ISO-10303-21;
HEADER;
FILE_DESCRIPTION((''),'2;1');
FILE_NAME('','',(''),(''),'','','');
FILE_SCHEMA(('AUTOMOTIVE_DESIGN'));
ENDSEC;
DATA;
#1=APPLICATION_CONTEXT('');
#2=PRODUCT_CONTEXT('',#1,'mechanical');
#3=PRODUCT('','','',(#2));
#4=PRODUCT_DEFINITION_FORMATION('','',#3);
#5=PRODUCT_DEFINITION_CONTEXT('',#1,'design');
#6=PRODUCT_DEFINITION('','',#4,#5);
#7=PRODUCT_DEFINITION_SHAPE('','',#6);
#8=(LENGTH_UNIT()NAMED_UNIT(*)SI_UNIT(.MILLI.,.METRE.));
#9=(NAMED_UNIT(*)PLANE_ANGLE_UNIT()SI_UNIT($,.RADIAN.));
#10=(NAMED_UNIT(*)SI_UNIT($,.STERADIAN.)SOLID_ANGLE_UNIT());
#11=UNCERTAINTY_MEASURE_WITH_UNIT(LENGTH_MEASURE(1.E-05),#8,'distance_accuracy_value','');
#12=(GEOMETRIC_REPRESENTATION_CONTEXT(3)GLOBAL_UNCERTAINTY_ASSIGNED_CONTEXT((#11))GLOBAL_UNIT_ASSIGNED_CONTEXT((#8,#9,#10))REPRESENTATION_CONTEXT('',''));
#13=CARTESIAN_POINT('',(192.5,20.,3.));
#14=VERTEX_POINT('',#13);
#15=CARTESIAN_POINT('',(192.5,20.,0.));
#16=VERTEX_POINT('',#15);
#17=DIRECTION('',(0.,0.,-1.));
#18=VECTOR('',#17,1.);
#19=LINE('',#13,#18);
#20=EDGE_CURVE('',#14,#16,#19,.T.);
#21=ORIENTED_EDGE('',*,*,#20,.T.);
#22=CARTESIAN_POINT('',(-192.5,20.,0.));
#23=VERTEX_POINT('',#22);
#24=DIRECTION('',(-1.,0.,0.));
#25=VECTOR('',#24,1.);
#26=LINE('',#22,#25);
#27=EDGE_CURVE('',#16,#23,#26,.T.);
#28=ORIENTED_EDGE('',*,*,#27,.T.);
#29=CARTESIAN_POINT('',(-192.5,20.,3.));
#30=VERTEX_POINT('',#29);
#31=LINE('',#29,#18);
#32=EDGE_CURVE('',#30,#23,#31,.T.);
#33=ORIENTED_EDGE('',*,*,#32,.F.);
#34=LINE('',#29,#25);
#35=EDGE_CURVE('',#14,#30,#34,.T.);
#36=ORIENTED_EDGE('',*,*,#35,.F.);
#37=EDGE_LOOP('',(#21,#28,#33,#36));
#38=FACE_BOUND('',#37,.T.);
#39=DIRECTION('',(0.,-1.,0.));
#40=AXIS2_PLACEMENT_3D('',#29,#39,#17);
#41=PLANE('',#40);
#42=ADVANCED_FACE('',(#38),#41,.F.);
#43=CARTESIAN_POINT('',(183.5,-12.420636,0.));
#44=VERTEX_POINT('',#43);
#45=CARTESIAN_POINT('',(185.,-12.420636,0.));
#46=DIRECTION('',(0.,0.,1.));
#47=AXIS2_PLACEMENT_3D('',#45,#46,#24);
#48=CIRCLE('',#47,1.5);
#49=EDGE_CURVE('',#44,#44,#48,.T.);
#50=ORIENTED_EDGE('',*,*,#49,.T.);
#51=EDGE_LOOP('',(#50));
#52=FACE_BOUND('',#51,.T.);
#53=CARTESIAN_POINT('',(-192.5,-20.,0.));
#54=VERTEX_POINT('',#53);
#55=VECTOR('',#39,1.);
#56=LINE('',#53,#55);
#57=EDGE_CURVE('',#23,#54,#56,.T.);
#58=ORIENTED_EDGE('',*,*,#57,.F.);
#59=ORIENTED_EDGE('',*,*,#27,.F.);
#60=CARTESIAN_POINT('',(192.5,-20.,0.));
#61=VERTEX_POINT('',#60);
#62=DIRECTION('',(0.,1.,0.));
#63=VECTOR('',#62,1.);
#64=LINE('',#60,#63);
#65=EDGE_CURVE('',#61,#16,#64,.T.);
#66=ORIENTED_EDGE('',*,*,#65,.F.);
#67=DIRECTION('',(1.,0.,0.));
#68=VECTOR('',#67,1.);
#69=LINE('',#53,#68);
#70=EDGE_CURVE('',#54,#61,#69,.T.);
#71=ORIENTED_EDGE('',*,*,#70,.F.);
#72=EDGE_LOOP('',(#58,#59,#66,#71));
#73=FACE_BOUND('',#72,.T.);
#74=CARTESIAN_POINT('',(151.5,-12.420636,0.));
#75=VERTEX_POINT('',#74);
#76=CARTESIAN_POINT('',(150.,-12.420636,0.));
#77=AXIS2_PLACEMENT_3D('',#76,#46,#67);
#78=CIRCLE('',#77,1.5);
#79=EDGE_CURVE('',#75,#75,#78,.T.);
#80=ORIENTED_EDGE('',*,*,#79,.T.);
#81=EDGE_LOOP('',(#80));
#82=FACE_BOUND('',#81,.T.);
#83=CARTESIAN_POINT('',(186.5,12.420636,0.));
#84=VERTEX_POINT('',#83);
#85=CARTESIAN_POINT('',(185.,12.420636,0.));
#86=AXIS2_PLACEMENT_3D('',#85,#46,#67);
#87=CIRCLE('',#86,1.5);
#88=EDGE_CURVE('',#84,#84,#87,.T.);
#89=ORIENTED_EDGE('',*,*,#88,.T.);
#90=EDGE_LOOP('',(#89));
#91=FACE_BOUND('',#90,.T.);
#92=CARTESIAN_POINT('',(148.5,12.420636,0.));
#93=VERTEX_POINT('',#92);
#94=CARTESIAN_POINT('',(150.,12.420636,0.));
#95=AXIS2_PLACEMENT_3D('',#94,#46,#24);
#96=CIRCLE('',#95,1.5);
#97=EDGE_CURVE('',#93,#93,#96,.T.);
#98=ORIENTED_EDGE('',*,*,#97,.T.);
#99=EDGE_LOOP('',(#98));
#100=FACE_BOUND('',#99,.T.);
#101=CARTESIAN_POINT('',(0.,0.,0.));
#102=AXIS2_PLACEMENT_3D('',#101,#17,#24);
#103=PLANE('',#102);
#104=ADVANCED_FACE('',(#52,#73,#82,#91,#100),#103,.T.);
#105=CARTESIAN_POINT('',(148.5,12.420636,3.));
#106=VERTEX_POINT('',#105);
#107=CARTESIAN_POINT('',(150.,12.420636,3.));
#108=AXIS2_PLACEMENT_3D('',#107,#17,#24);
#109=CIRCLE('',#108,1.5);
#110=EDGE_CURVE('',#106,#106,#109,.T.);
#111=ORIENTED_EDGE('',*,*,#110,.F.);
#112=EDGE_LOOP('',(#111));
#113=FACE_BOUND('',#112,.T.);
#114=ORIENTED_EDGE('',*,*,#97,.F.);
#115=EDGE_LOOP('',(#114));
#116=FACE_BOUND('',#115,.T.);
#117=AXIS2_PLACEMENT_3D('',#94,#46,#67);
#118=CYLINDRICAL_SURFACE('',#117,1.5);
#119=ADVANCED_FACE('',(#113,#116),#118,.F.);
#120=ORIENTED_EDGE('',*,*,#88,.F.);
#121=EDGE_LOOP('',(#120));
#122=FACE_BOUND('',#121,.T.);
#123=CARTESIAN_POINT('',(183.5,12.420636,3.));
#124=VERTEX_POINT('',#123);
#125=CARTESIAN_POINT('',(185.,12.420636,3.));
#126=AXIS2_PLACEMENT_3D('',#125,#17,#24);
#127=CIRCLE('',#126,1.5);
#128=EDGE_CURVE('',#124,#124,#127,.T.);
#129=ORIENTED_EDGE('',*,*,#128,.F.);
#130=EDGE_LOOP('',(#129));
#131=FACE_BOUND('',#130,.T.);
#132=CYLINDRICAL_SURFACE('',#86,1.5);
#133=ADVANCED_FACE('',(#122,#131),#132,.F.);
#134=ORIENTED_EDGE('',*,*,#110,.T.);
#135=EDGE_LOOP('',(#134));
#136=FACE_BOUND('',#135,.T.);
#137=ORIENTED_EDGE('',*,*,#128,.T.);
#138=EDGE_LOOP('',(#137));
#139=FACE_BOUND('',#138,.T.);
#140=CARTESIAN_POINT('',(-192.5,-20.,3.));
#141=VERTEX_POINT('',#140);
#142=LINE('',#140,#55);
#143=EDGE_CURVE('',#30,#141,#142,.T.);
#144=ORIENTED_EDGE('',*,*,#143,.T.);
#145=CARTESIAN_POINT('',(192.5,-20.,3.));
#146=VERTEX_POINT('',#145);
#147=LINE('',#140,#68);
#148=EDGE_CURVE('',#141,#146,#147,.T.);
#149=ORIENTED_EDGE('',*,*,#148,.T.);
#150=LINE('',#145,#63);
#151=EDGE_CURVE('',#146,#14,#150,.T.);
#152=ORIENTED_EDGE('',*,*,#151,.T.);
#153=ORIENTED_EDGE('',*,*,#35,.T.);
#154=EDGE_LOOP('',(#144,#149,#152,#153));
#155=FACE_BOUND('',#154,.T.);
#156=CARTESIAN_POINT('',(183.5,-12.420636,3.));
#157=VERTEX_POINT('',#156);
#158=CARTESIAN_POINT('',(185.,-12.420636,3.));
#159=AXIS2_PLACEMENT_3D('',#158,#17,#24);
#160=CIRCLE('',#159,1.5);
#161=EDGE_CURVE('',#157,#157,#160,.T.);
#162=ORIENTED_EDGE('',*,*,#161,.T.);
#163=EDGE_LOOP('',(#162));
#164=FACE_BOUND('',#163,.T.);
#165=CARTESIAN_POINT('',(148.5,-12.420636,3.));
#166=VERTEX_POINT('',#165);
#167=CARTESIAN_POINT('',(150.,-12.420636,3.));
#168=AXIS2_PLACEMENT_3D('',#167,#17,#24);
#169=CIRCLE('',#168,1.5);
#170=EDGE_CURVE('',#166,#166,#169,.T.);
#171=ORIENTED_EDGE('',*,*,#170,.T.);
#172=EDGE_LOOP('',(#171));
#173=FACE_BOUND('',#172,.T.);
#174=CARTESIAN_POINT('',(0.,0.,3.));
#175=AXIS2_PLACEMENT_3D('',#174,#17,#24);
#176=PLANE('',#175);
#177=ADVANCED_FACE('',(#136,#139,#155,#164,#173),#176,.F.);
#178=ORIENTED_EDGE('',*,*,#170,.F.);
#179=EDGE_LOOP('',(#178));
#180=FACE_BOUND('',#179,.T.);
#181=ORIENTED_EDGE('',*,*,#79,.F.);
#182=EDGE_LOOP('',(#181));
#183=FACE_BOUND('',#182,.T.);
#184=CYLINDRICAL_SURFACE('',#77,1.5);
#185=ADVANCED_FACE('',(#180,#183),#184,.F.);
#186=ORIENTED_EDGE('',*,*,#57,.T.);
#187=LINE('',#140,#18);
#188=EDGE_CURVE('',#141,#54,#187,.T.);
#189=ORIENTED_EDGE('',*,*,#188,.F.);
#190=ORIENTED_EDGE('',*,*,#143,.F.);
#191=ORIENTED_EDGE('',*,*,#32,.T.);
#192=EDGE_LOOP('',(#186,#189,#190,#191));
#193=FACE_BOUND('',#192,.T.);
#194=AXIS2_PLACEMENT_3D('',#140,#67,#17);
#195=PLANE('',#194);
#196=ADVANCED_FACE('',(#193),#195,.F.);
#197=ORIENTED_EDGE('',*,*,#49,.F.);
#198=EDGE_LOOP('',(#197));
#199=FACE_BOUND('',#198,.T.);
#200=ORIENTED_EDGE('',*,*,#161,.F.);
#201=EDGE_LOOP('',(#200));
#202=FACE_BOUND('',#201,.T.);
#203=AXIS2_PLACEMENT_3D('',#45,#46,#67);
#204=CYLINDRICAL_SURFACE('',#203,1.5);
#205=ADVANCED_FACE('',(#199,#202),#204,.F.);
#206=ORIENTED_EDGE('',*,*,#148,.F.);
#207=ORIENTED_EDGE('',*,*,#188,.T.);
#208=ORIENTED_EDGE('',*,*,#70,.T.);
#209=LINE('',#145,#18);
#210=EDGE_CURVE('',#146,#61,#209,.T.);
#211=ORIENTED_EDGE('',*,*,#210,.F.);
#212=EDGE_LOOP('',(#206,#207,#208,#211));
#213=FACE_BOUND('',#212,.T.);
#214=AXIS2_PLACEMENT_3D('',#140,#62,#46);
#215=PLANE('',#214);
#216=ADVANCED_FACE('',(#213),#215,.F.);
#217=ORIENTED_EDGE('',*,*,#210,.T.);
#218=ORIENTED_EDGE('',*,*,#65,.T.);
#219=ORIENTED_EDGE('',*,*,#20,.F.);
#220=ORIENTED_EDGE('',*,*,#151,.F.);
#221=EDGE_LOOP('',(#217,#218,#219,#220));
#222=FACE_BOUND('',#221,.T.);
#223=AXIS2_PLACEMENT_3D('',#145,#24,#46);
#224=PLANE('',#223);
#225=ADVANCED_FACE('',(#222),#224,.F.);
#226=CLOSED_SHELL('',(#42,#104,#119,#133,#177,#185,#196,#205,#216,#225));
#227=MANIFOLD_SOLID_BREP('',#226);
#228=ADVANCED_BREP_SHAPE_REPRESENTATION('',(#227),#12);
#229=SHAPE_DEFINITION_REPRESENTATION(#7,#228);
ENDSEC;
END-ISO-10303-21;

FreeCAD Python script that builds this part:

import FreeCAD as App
import Part
import Sketcher
from FreeCAD import Vector
Q = App.Units.Quantity

doc = App.newDocument("Part")
body = doc.addObject("PartDesign::Body", "Body")

# Sketch on XY plane
sketch1 = doc.addObject("Sketcher::SketchObject", "Sketch")
body.addObject(sketch1)
sketch1.AttachmentSupport = (doc.XY_Plane, [""])
sketch1.MapMode = "FlatFace"
sketch1.addGeometry(Part.LineSegment(Vector(-192, 20, 0), Vector(-192, -20, 0)), False)
sketch1.addGeometry(Part.LineSegment(Vector(-192, -20, 0), Vector(192, -20, 0)), False)
sketch1.addGeometry(Part.LineSegment(Vector(192, -20, 0), Vector(192, 20, 0)), False)
sketch1.addGeometry(Part.LineSegment(Vector(192, 20, 0), Vector(-192, 20, 0)), False)
sketch1.addConstraint(Sketcher.Constraint("Coincident", 0, 2, 1, 1))
sketch1.addConstraint(Sketcher.Constraint("Coincident", 1, 2, 2, 1))
sketch1.addConstraint(Sketcher.Constraint("Coincident", 2, 2, 3, 1))
sketch1.addConstraint(Sketcher.Constraint("Coincident", 3, 2, 0, 1))
sketch1.addConstraint(Sketcher.Constraint("Vertical", 0))
sketch1.addConstraint(Sketcher.Constraint("Horizontal", 1))
sketch1.addConstraint(Sketcher.Constraint("Vertical", 2))
sketch1.addConstraint(Sketcher.Constraint("Horizontal", 3))
sketch1.addConstraint(Sketcher.Constraint("Symmetric", 0, 2, 2, 2, -1, 1))
sketch1.addConstraint(Sketcher.Constraint("DistanceX", 1, 1, 1, 2, Q("385 mm")))
sketch1.addConstraint(Sketcher.Constraint("DistanceY", 0, 2, 0, 1, Q("40 mm")))
pad1 = doc.addObject("PartDesign::Pad", "Pad")
body.addObject(pad1)
pad1.Profile = sketch1
pad1.Length = 3

# Sketch on XY plane
sketch2 = doc.addObject("Sketcher::SketchObject", "Sketch001")
body.addObject(sketch2)
sketch2.AttachmentSupport = (doc.XY_Plane, [""])
sketch2.MapMode = "FlatFace"
sketch2.AttachmentOffset = App.Placement(Vector(0, 0, 3), App.Rotation())
sketch2.addGeometry(Part.Circle(Vector(185, 12.4, 0), Vector(0, 0, 1), 1.5), False)
sketch2.addGeometry(Part.Circle(Vector(185, -12.4, 0), Vector(0, 0, 1), 1.5), False)
sketch2.addGeometry(Part.Circle(Vector(150, -12.4, 0), Vector(0, 0, 1), 1.5), False)
sketch2.addGeometry(Part.Circle(Vector(150, 12.4, 0), Vector(0, 0, 1), 1.5), False)
sketch2.addConstraint(Sketcher.Constraint("Equal", 0, 1))
sketch2.addConstraint(Sketcher.Constraint("Equal", 1, 2))
sketch2.addConstraint(Sketcher.Constraint("Equal", 2, 3))
sketch2.addConstraint(Sketcher.Constraint("Symmetric", 0, 3, 1, 3, -1))
sketch2.addConstraint(Sketcher.Constraint("Symmetric", 2, 3, 3, 3, -1))
sketch2.addConstraint(Sketcher.Constraint("Horizontal", 1, 3, 2, 3))
sketch2.addConstraint(Sketcher.Constraint("Diameter", 0, Q("3 mm")))
sketch2.addConstraint(Sketcher.Constraint("DistanceX", -1, 1, 0, 3, Q("185 mm")))
sketch2.addConstraint(Sketcher.Constraint("DistanceX", -1, 1, 2, 3, Q("150 mm")))
sketch2.addConstraint(Sketcher.Constraint("DistanceY", 1, 3, 0, 3, Q("24.841271 mm")))
pocket1 = doc.addObject("PartDesign::Pocket", "Pocket")
body.addObject(pocket1)
pocket1.Profile = sketch2
pocket1.Type = "ThroughAll"
pocket1.Midplane = True

doc.recompute()
